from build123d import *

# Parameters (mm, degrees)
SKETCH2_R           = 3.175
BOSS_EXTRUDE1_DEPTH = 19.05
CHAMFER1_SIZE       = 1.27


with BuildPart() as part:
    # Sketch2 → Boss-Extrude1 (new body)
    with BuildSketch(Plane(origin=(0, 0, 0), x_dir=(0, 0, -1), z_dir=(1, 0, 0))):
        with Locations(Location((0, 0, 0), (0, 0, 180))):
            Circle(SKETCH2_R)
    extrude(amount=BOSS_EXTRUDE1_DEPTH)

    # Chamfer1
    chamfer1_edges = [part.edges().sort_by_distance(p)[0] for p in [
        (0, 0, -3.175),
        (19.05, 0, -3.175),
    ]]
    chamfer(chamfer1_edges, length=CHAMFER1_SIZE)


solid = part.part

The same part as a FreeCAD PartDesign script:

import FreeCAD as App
import Part
import Sketcher
from FreeCAD import Vector
Q = App.Units.Quantity


def edges_at(feature, points):
    """Names of the edges that pass closest to the given points."""
    edges = feature.Shape.Edges
    near = lambda p: min(range(len(edges)), key=lambda i: edges[i].distToShape(Part.Vertex(*p))[0])
    return sorted({f"Edge{near(p) + 1}" for p in points})

doc = App.newDocument("Part")
body = doc.addObject("PartDesign::Body", "Body")

# Sketch on YZ plane
sketch1 = body.newObject("Sketcher::SketchObject", "Sketch")
sketch1.AttachmentSupport = (doc.getObject("YZ_Plane"), [""])
sketch1.MapMode = "FlatFace"
sketch1.addGeometry(Part.Circle(Vector(0, 0, 0), Vector(0, 0, 1), 3.2), False)
sketch1.addConstraint(Sketcher.Constraint("Coincident", 0, 3, -1, 1))
sketch1.addConstraint(Sketcher.Constraint("Diameter", 0, Q("0.25 in")))
pad1 = body.newObject("PartDesign::Pad", "Pad")
pad1.Profile = sketch1
pad1.Length = Q("0.75 in")
doc.recompute()

chamfer = body.newObject("PartDesign::Chamfer", "Chamfer")
chamfer.Base = (pad1, edges_at(pad1, [(0, 0, -3.175), (19.05, 0, -3.175)]))
chamfer.Size = Q("0.05 in")

doc.recompute()
